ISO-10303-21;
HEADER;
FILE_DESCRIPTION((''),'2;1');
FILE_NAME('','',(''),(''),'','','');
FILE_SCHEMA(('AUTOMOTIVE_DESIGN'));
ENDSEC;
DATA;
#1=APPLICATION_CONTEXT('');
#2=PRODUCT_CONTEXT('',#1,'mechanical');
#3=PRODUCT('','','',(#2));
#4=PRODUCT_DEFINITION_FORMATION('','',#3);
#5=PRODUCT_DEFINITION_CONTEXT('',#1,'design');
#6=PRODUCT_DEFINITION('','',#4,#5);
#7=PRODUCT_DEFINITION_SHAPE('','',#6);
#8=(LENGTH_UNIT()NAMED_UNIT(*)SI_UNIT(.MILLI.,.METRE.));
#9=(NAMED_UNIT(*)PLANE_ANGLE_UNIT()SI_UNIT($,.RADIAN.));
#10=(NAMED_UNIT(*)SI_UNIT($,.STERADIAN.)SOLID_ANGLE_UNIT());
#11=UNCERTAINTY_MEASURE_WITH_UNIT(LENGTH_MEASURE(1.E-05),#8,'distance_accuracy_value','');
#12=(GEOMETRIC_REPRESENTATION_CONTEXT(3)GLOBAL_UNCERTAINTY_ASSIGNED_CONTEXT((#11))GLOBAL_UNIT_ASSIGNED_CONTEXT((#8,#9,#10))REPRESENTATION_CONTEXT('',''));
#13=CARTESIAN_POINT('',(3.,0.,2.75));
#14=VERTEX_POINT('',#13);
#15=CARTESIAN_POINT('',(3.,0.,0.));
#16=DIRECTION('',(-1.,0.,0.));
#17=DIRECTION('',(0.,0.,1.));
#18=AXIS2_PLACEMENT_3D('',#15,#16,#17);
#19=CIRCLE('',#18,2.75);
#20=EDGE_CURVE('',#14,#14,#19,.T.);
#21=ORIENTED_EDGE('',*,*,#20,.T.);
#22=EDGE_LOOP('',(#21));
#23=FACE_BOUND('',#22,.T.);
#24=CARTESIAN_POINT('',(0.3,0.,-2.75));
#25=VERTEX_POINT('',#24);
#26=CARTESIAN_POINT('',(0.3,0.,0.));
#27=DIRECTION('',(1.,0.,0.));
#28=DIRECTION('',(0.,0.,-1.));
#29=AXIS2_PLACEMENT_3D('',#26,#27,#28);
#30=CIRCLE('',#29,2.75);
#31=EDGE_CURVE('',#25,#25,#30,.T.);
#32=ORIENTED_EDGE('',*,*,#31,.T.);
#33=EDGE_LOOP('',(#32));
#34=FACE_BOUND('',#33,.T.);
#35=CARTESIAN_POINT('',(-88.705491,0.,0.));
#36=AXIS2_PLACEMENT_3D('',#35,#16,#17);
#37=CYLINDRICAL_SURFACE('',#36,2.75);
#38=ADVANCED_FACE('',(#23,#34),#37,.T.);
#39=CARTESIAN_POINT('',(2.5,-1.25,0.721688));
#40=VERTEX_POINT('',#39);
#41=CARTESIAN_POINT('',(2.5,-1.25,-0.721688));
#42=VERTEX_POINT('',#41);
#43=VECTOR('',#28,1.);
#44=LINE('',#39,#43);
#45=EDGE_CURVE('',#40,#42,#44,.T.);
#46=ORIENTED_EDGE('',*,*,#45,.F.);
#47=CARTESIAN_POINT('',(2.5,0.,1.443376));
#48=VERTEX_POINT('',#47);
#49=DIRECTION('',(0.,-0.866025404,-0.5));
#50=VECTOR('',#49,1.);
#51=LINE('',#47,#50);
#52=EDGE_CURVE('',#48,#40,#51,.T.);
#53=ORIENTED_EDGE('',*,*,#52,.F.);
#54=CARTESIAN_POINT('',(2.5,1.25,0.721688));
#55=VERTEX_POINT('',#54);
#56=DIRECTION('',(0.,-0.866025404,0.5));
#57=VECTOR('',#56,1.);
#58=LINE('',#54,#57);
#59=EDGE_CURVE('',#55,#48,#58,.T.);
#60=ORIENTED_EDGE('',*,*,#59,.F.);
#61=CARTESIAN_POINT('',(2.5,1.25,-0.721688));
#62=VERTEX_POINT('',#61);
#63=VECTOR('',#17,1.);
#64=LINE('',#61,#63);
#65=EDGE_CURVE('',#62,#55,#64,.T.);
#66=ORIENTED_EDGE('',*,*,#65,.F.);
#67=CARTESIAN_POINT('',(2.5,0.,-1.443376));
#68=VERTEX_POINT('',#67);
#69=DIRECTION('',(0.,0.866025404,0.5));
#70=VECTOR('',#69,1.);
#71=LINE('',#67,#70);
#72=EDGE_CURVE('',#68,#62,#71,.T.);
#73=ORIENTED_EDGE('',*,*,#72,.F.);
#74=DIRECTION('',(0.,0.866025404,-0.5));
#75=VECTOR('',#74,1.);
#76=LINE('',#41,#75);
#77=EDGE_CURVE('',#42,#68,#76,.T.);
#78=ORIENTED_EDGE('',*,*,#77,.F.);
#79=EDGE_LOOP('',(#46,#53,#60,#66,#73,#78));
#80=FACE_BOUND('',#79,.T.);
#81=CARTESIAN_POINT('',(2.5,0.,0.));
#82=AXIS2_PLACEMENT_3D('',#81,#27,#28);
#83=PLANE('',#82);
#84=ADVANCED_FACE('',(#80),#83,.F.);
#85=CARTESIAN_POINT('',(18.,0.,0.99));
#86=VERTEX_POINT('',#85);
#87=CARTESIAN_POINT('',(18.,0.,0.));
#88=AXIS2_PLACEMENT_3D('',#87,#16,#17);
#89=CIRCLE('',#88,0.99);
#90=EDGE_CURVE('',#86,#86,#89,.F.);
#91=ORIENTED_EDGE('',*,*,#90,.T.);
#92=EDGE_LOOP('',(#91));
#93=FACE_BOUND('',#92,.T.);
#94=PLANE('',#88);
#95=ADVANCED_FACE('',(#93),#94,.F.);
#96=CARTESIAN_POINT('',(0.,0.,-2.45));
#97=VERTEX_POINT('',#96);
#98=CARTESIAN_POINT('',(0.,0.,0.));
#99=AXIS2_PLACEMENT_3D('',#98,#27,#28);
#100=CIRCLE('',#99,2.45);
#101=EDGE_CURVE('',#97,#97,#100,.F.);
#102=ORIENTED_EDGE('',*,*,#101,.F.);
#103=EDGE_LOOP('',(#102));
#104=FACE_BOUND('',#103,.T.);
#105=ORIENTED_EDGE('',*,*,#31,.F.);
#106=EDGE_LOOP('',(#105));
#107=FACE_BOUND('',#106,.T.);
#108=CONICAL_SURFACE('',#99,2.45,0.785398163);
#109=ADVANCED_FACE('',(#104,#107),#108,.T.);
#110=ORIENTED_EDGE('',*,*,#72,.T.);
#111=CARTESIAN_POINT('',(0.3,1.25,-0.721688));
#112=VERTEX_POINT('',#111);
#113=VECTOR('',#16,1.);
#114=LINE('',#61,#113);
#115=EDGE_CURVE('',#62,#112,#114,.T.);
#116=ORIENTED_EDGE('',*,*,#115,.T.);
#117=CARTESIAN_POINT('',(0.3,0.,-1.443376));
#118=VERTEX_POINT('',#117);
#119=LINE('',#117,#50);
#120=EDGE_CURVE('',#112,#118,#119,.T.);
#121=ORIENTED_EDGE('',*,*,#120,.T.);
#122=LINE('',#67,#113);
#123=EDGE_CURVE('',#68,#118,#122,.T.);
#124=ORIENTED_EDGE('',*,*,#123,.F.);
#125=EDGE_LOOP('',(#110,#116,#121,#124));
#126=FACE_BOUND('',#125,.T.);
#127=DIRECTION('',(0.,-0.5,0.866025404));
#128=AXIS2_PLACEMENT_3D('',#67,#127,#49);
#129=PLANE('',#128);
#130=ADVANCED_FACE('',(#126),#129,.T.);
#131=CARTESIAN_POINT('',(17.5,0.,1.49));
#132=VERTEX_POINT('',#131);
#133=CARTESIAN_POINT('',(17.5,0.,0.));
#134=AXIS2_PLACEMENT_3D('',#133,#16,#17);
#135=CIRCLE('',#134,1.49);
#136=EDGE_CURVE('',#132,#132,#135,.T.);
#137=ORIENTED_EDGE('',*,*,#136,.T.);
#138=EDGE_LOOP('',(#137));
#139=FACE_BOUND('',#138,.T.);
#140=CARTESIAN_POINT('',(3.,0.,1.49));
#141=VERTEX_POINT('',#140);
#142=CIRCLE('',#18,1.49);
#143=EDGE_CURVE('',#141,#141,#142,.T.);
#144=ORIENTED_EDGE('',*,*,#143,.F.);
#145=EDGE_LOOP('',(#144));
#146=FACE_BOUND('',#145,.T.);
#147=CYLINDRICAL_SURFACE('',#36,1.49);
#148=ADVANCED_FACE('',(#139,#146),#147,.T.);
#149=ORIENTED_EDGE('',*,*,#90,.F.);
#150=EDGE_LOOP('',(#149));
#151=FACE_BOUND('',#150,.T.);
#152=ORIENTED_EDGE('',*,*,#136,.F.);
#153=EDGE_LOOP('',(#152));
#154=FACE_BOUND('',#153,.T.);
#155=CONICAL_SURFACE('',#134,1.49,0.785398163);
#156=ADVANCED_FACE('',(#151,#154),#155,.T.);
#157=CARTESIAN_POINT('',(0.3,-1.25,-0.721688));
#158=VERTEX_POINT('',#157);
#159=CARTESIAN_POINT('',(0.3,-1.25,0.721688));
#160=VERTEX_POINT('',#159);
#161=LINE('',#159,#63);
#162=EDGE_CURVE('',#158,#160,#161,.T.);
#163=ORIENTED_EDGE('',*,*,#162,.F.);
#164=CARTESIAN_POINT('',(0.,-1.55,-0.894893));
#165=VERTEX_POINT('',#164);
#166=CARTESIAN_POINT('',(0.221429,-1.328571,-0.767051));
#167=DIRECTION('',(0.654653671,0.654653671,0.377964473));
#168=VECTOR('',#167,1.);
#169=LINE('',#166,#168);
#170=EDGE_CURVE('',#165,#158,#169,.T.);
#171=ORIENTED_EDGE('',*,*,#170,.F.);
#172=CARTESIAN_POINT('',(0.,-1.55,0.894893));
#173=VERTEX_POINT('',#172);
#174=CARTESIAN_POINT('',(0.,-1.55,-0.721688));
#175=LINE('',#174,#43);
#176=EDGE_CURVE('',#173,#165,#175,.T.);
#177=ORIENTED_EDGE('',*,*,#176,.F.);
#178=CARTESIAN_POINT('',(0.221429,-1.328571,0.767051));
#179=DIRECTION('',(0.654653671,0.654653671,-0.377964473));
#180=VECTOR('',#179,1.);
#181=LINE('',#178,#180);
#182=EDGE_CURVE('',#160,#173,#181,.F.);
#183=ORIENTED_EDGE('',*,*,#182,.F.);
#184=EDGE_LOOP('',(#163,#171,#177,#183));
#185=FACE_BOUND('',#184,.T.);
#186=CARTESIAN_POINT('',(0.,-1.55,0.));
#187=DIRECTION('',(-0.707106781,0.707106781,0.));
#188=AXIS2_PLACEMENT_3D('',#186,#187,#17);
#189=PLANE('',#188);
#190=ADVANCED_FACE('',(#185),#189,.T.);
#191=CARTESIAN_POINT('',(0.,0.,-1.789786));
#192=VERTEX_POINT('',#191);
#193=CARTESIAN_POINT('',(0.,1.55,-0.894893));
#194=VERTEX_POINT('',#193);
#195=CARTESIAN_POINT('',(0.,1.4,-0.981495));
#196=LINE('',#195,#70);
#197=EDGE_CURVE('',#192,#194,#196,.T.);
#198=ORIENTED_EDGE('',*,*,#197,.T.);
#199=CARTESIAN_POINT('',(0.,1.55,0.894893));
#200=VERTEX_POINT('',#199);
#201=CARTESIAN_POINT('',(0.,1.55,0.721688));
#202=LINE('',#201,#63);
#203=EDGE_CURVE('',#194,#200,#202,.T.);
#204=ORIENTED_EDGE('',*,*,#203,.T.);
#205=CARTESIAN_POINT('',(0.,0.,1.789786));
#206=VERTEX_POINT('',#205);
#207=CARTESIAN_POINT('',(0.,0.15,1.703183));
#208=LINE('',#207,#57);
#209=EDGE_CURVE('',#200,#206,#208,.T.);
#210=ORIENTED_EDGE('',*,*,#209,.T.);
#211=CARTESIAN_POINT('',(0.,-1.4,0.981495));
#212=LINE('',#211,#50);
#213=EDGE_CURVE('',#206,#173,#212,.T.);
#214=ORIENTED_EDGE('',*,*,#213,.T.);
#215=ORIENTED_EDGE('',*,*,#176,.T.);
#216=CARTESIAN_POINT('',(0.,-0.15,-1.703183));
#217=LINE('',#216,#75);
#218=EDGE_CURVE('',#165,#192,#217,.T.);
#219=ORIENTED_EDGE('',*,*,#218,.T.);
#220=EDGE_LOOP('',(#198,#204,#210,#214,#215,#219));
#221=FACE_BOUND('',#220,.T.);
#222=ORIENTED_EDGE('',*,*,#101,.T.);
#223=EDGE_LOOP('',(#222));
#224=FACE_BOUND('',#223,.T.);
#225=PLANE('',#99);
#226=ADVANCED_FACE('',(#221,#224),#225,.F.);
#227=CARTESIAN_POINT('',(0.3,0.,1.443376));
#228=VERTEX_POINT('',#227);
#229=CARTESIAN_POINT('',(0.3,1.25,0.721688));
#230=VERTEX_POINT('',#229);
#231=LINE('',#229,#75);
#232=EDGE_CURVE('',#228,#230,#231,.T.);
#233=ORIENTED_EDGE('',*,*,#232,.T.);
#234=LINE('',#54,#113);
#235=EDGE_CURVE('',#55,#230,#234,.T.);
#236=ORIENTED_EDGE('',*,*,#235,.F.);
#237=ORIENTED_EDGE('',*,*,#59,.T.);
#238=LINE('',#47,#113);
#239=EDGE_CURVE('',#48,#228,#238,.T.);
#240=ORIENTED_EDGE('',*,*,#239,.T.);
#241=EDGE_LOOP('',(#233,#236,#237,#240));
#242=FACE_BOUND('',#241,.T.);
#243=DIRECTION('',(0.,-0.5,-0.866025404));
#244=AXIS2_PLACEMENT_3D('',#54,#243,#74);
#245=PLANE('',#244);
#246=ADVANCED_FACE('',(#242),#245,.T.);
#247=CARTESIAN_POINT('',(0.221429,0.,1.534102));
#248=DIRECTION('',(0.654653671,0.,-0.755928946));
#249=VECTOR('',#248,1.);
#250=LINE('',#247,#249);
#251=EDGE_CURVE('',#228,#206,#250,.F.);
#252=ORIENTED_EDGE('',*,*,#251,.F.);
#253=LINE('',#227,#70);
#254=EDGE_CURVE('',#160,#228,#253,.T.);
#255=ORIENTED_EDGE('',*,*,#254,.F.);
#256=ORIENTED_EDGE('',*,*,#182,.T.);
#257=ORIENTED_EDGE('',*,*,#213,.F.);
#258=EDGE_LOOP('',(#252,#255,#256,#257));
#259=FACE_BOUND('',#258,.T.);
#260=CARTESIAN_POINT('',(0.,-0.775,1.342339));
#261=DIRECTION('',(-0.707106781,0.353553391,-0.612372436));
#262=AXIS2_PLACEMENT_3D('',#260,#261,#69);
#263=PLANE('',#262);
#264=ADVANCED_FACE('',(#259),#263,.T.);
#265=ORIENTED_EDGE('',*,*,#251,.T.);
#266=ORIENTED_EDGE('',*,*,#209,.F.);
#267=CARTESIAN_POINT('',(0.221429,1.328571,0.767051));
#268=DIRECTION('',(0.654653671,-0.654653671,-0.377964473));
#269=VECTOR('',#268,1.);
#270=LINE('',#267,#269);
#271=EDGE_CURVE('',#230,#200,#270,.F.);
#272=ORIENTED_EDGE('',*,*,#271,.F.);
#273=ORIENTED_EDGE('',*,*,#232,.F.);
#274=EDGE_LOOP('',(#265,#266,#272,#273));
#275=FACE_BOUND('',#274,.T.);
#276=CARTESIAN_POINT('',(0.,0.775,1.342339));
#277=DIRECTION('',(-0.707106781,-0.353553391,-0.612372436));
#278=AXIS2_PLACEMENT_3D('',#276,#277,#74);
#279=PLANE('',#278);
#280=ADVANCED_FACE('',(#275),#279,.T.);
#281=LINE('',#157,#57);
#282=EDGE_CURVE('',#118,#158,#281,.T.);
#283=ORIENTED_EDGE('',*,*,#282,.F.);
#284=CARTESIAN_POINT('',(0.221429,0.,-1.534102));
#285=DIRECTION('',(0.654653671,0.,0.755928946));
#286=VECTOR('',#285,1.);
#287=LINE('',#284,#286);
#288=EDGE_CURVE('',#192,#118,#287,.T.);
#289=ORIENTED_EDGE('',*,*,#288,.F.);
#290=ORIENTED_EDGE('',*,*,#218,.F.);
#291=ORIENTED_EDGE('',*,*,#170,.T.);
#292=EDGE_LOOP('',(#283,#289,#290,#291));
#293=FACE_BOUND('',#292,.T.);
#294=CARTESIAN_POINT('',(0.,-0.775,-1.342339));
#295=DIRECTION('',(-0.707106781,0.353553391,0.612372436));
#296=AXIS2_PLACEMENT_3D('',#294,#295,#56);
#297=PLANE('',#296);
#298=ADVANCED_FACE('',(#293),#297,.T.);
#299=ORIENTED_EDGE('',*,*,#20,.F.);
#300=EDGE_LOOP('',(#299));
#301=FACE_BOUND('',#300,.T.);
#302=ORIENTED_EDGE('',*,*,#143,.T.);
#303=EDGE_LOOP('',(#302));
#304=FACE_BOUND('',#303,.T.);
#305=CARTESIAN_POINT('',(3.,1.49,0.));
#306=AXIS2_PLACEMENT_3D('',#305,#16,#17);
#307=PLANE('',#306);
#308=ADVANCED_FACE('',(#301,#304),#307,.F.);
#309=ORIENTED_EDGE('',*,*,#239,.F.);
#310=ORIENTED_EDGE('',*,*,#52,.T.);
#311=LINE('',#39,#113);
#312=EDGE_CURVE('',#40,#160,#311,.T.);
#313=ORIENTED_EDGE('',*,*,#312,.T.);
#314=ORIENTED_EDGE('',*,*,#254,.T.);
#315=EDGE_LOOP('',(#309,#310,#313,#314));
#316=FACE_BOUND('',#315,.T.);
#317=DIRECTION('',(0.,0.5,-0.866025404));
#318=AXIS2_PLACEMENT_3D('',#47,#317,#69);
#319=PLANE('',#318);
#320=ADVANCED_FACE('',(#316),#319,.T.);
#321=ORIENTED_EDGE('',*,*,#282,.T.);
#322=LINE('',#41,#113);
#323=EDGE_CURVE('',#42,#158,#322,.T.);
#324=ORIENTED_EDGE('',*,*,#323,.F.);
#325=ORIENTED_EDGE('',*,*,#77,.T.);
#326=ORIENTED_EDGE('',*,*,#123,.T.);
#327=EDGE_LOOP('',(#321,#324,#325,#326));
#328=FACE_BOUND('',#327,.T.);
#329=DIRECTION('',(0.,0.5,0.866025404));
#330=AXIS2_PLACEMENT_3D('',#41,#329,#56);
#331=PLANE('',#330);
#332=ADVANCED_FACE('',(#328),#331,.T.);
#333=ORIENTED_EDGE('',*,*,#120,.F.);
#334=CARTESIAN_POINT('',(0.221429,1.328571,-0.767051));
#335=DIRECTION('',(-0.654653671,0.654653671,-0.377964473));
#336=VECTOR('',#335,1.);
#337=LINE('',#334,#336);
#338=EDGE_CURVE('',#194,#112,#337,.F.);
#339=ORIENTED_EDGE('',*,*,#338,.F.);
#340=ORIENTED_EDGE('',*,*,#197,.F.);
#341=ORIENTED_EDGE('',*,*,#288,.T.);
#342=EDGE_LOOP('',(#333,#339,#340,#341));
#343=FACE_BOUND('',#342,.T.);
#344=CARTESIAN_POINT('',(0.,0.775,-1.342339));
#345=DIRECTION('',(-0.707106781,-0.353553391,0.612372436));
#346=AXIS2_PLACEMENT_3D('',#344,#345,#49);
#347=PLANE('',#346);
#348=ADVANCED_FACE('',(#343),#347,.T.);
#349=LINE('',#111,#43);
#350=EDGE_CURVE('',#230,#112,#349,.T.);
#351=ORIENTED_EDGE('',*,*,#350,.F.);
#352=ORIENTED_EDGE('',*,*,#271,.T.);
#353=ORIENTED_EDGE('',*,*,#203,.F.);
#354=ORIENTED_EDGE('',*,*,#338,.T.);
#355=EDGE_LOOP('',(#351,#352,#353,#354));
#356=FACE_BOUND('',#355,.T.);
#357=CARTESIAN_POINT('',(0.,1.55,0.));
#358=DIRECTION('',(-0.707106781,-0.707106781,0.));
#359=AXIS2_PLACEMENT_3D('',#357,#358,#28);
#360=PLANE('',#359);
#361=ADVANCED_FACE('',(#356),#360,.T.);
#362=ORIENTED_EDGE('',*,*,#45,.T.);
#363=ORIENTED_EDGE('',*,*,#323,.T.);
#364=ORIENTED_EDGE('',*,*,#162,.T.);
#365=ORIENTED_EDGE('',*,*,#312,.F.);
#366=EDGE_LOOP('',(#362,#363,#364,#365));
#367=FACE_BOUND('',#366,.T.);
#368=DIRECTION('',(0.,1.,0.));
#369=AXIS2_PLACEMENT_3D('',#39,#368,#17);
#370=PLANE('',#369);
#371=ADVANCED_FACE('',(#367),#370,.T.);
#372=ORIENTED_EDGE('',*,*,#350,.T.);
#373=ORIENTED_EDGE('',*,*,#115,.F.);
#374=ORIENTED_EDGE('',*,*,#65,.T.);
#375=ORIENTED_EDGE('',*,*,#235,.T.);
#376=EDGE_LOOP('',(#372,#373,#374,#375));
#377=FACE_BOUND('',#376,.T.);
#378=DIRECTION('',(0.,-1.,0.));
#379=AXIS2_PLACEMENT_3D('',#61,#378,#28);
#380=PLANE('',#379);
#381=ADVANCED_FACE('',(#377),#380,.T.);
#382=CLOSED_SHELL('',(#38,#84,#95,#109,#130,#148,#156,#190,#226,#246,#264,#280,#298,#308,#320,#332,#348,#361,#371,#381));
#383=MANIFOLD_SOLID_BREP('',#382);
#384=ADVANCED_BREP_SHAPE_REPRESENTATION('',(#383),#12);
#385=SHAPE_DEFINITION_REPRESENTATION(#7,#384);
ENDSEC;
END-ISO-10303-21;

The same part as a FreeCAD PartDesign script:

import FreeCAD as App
import Part
import Sketcher

V = App.Vector
Q = App.Units.Quantity


def edges_at(feature, points):
    """Names of the edges that pass closest to the given points."""
    edges = feature.Shape.Edges
    near = lambda p: min(range(len(edges)), key=lambda i: edges[i].distToShape(Part.Vertex(*p))[0])
    return sorted({f"Edge{near(p) + 1}" for p in points})


def add_polygon(sketch, points):
    """Adds a closed chain of lines whose ends are joined by coincident constraints."""
    first, n = sketch.GeometryCount, len(points)
    for a, b in zip(points, points[1:] + points[:1]):
        sketch.addGeometry(Part.LineSegment(App.Vector(*a, 0), App.Vector(*b, 0)), False)
    for i in range(n):
        sketch.addConstraint(Sketcher.Constraint("Coincident", first + i, 2, first + (i + 1) % n, 1))

doc = App.newDocument("Part")
body = doc.addObject("PartDesign::Body", "Body")

# Sketch on XY plane
sketch1 = body.newObject("Sketcher::SketchObject", "Sketch")
sketch1.AttachmentSupport = (doc.getObject("XY_Plane"), [""])
sketch1.MapMode = "FlatFace"
add_polygon(sketch1, [(0, 2.8), (0, 0), (18, 0), (18, 1.5), (3, 1.5), (3, 2.8)])  # lines 0-5
sketch1.addConstraint([
    Sketcher.Constraint("Vertical", 0),
    Sketcher.Constraint("Horizontal", 1),
    Sketcher.Constraint("Vertical", 2),
    Sketcher.Constraint("Horizontal", 3),
    Sketcher.Constraint("Vertical", 4),
    Sketcher.Constraint("Horizontal", 5),
    Sketcher.Constraint("Coincident", 0, 2, -1, 1),
    Sketcher.Constraint("DistanceX", 1, 1, 1, 2, Q("18 mm")),
    Sketcher.Constraint("DistanceX", 3, 2, 3, 1, Q("15 mm")),
    Sketcher.Constraint("DistanceY", 0, 2, 0, 1, Q("2.75 mm")),
    Sketcher.Constraint("DistanceY", 2, 1, 2, 2, Q("1.49 mm")),
])
revolution = body.newObject("PartDesign::Revolution", "Revolution")
revolution.Profile = sketch1
revolution.ReferenceAxis = (sketch1, ["H_Axis"])
revolution.Angle = 360
doc.recompute()

chamfer = body.newObject("PartDesign::Chamfer", "Chamfer")
chamfer.Base = (revolution, edges_at(revolution, [(18, -1.49, 0)]))
chamfer.Size = 0.5
doc.recompute()

chamfer2 = body.newObject("PartDesign::Chamfer", "Chamfer001")
chamfer2.Base = (chamfer, edges_at(chamfer, [(0, -2.75, 0)]))
chamfer2.Size = 0.3

# Sketch on YZ plane
sketch2 = body.newObject("Sketcher::SketchObject", "Sketch001")
sketch2.AttachmentSupport = (doc.getObject("YZ_Plane"), [""])
sketch2.MapMode = "FlatFace"
add_polygon(sketch2, [(0, 1.4), (-1.2, 0.7), (-1.2, -0.7), (0, -1.4), (1.2, -0.7), (1.2, 0.7)])  # lines 0-5
sketch2.addConstraint([
    Sketcher.Constraint("Vertical", 1),
    Sketcher.Constraint("Vertical", 4),
    Sketcher.Constraint("Symmetric", 0, 2, 3, 2, -1, 1),
    Sketcher.Constraint("Symmetric", 2, 2, 5, 2, -1, 1),
    Sketcher.Constraint("PointOnObject", 2, 2, -2),
    Sketcher.Constraint("Parallel", 2, 5),
    Sketcher.Constraint("Horizontal", 1, 2, 3, 2),
    Sketcher.Constraint("Angle", 0, Q("-150 deg")),
    Sketcher.Constraint("DistanceX", 1, 2, 3, 2, Q("2.5 mm")),
    Sketcher.Constraint("DistanceY", 1, 2, 1, 1, Q("1.443376 mm")),
])
pocket1 = body.newObject("PartDesign::Pocket", "Pocket")
pocket1.Profile = sketch2
pocket1.Length = 2.5
pocket1.Reversed = True
doc.recompute()

chamfer3 = body.newObject("PartDesign::Chamfer", "Chamfer002")
chamfer3.Base = (pocket1, edges_at(pocket1, [
    (0, 0.625, 1.083),
    (0, -0.625, 1.083),
    (0, -1.25, 0),
    (0, -0.625, -1.083),
    (0, 0.625, -1.083),
    (0, 1.25, 0),
]))
chamfer3.Size = 0.3

doc.recompute()
